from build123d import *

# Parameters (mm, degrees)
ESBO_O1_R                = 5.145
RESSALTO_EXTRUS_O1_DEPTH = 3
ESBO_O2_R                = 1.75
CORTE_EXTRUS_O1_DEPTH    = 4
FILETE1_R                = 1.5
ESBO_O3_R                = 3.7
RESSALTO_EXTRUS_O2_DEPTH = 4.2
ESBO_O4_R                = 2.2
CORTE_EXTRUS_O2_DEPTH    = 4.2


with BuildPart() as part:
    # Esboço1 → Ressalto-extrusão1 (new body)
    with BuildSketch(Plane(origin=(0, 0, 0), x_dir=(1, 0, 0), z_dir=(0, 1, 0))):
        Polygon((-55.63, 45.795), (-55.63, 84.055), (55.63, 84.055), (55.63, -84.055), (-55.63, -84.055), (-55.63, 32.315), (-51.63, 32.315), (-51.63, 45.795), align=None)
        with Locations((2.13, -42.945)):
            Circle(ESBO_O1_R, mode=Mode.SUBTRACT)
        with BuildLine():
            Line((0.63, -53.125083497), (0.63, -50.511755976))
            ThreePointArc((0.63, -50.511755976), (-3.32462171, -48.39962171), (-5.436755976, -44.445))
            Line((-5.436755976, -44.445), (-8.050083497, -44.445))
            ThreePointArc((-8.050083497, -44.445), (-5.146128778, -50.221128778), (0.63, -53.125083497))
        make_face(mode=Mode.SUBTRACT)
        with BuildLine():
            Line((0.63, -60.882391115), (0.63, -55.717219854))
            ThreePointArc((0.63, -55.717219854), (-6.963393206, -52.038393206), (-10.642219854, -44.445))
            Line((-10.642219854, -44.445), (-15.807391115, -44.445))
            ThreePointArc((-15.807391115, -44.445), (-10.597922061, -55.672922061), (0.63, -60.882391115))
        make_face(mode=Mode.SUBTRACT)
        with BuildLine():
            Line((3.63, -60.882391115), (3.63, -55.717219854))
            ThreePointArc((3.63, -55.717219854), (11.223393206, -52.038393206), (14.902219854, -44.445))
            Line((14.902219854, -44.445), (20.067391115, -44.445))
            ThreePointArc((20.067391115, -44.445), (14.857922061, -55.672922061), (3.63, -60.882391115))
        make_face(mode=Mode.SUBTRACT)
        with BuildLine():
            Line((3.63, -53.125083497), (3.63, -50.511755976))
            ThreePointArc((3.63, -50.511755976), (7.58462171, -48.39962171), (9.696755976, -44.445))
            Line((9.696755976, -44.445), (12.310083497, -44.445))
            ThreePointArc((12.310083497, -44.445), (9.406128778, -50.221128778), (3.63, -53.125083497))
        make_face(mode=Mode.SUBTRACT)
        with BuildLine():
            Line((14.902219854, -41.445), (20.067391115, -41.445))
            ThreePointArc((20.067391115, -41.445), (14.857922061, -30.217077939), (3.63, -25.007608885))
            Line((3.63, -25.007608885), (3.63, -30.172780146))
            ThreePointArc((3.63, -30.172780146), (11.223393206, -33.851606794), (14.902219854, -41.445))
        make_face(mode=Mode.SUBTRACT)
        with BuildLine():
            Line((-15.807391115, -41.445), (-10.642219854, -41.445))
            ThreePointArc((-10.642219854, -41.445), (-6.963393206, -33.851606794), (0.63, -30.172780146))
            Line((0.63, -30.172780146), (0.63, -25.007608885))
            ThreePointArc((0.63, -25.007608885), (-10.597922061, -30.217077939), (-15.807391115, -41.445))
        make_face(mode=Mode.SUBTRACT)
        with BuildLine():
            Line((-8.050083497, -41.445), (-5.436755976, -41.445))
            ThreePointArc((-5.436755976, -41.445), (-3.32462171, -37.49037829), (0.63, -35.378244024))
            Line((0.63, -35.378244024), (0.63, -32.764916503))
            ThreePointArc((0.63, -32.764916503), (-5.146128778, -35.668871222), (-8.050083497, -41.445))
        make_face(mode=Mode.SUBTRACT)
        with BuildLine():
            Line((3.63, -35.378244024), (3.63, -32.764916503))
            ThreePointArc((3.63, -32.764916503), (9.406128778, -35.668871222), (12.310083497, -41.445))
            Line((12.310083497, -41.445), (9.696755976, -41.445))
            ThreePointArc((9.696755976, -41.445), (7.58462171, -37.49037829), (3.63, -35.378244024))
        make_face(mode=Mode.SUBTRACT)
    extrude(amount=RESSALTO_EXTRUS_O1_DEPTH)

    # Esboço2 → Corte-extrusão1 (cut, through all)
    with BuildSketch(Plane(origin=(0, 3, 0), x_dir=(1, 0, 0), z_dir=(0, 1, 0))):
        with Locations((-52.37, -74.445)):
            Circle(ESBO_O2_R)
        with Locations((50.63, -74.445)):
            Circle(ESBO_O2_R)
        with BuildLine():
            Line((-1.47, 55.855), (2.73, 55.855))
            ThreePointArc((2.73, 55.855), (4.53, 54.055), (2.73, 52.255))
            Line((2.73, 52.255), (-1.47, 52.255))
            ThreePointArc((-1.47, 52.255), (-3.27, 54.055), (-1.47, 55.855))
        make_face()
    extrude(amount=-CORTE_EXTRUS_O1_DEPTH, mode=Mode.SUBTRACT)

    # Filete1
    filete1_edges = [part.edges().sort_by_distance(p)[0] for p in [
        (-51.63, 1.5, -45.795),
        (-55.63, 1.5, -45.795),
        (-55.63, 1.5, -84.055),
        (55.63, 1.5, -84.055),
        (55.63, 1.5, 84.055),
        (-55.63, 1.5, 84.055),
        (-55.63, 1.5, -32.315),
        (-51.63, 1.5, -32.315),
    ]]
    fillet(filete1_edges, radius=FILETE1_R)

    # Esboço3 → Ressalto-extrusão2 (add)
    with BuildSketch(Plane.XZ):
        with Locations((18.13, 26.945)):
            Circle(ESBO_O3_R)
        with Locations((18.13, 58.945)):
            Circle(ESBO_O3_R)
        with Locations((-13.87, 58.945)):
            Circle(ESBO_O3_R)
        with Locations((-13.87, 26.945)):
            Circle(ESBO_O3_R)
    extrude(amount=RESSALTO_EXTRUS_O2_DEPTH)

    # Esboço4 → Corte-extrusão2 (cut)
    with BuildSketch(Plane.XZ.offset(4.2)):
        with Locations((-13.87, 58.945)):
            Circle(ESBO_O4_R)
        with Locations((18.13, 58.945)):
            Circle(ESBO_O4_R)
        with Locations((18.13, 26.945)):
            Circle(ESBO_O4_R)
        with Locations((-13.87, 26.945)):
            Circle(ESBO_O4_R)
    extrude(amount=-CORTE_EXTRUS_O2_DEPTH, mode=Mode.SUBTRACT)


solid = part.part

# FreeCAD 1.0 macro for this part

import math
import FreeCAD as App
import Part
import Sketcher
Q = App.Units.Quantity


def edges_at(feature, points):
    """Names of the edges that pass closest to the given points."""
    edges = feature.Shape.Edges
    near = lambda p: min(range(len(edges)), key=lambda i: edges[i].distToShape(Part.Vertex(*p))[0])
    return sorted({f"Edge{near(p) + 1}" for p in points})


def add_polygon(sketch, points):
    """Adds a closed chain of lines whose ends are joined by coincident constraints."""
    first, n = sketch.GeometryCount, len(points)
    for a, b in zip(points, points[1:] + points[:1]):
        sketch.addGeometry(Part.LineSegment(App.Vector(*a, 0), App.Vector(*b, 0)), False)
    for i in range(n):
        sketch.addConstraint(Sketcher.Constraint("Coincident", first + i, 2, first + (i + 1) % n, 1))

doc = App.newDocument("Part")
body = doc.addObject("PartDesign::Body", "Body")

# Sketch on XZ plane
sketch1 = body.newObject("Sketcher::SketchObject", "Sketch")
sketch1.AttachmentSupport = (doc.getObject("XZ_Plane"), [""])
sketch1.MapMode = "FlatFace"
add_polygon(sketch1, [(-55.6, -84.1), (-55.6, -45.8), (-51.6, -45.8), (-51.6, -32.3), (-55.6, -32.3), (-55.6, 84.1), (55.6, 84.1), (55.6, -84.1)])  # lines 0-7
sketch1.addGeometry(Part.LineSegment(App.Vector(3.6, 60.9, 0), App.Vector(3.6, 55.7, 0)), False)  # 8
sketch1.addGeometry(Part.ArcOfCircle(Part.Circle(App.Vector(2.1, 42.9, 0), App.Vector(0, 0, 1), 12.9), math.radians(7), math.radians(83)), False)  # 9
sketch1.addGeometry(Part.LineSegment(App.Vector(14.9, 44.4, 0), App.Vector(20.1, 44.4, 0)), False)  # 10
sketch1.addGeometry(Part.ArcOfCircle(Part.Circle(App.Vector(2.1, 42.9, 0), App.Vector(0, 0, 1), 18), math.radians(5), math.radians(85)), False)  # 11
sketch1.addGeometry(Part.LineSegment(App.Vector(3.6, 53.1, 0), App.Vector(3.6, 50.5, 0)), False)  # 12
sketch1.addGeometry(Part.ArcOfCircle(Part.Circle(App.Vector(2.1, 42.9, 0), App.Vector(0, 0, 1), 7.7), math.radians(11), math.radians(79)), False)  # 13
sketch1.addGeometry(Part.LineSegment(App.Vector(9.7, 44.4, 0), App.Vector(12.3, 44.4, 0)), False)  # 14
sketch1.addGeometry(Part.ArcOfCircle(Part.Circle(App.Vector(2.1, 42.9, 0), App.Vector(0, 0, 1), 10.3), math.radians(8), math.radians(82)), False)  # 15
sketch1.addGeometry(Part.ArcOfCircle(Part.Circle(App.Vector(2.1, 42.9, 0), App.Vector(0, 0, 1), 18), math.radians(95), math.radians(175)), False)  # 16
sketch1.addGeometry(Part.LineSegment(App.Vector(-15.8, 44.4, 0), App.Vector(-10.6, 44.4, 0)), False)  # 17
sketch1.addGeometry(Part.ArcOfCircle(Part.Circle(App.Vector(2.1, 42.9, 0), App.Vector(0, 0, 1), 12.9), math.radians(97), math.radians(173)), False)  # 18
sketch1.addGeometry(Part.LineSegment(App.Vector(0.6, 55.7, 0), App.Vector(0.6, 60.9, 0)), False)  # 19
sketch1.addGeometry(Part.ArcOfCircle(Part.Circle(App.Vector(2.1, 42.9, 0), App.Vector(0, 0, 1), 10.3), math.radians(98), math.radians(172)), False)  # 20
sketch1.addGeometry(Part.LineSegment(App.Vector(-8.1, 44.4, 0), App.Vector(-5.4, 44.4, 0)), False)  # 21
sketch1.addGeometry(Part.ArcOfCircle(Part.Circle(App.Vector(2.1, 42.9, 0), App.Vector(0, 0, 1), 7.7), math.radians(101), math.radians(169)), False)  # 22
sketch1.addGeometry(Part.LineSegment(App.Vector(0.6, 50.5, 0), App.Vector(0.6, 53.1, 0)), False)  # 23
sketch1.addGeometry(Part.Circle(App.Vector(2.1, 42.9, 0), App.Vector(0, 0, 1), 5.1), False)  # 24
sketch1.addGeometry(Part.LineSegment(App.Vector(3.6, 35.4, 0), App.Vector(3.6, 32.8, 0)), False)  # 25
sketch1.addGeometry(Part.ArcOfCircle(Part.Circle(App.Vector(2.1, 42.9, 0), App.Vector(0, 0, 1), 10.3), math.radians(-82), math.radians(-8)), False)  # 26
sketch1.addGeometry(Part.LineSegment(App.Vector(12.3, 41.4, 0), App.Vector(9.7, 41.4, 0)), False)  # 27
sketch1.addGeometry(Part.ArcOfCircle(Part.Circle(App.Vector(2.1, 42.9, 0), App.Vector(0, 0, 1), 7.7), math.radians(-79), math.radians(-11)), False)  # 28
sketch1.addGeometry(Part.ArcOfCircle(Part.Circle(App.Vector(2.1, 42.9, 0), App.Vector(0, 0, 1), 12.9), math.radians(-83), math.radians(-7)), False)  # 29
sketch1.addGeometry(Part.LineSegment(App.Vector(3.6, 30.2, 0), App.Vector(3.6, 25, 0)), False)  # 30
sketch1.addGeometry(Part.ArcOfCircle(Part.Circle(App.Vector(2.1, 42.9, 0), App.Vector(0, 0, 1), 18), math.radians(-85), math.radians(-5)), False)  # 31
sketch1.addGeometry(Part.LineSegment(App.Vector(20.1, 41.4, 0), App.Vector(14.9, 41.4, 0)), False)  # 32
sketch1.addGeometry(Part.ArcOfCircle(Part.Circle(App.Vector(2.1, 42.9, 0), App.Vector(0, 0, 1), 10.3), math.radians(-172), math.radians(-98)), False)  # 33
sketch1.addGeometry(Part.LineSegment(App.Vector(0.6, 32.8, 0), App.Vector(0.6, 35.4, 0)), False)  # 34
sketch1.addGeometry(Part.ArcOfCircle(Part.Circle(App.Vector(2.1, 42.9, 0), App.Vector(0, 0, 1), 7.7), math.radians(-169), math.radians(-101)), False)  # 35
sketch1.addGeometry(Part.LineSegment(App.Vector(-5.4, 41.4, 0), App.Vector(-8.1, 41.4, 0)), False)  # 36
sketch1.addGeometry(Part.ArcOfCircle(Part.Circle(App.Vector(2.1, 42.9, 0), App.Vector(0, 0, 1), 18), math.radians(-175), math.radians(-95)), False)  # 37
sketch1.addGeometry(Part.LineSegment(App.Vector(0.6, 25, 0), App.Vector(0.6, 30.2, 0)), False)  # 38
sketch1.addGeometry(Part.ArcOfCircle(Part.Circle(App.Vector(2.1, 42.9, 0), App.Vector(0, 0, 1), 12.9), math.radians(-173), math.radians(-97)), False)  # 39
sketch1.addGeometry(Part.LineSegment(App.Vector(-10.6, 41.4, 0), App.Vector(-15.8, 41.4, 0)), False)  # 40
sketch1.addConstraint([
    Sketcher.Constraint("Coincident", 8, 2, 9, 2),
    Sketcher.Constraint("Coincident", 9, 1, 10, 1),
    Sketcher.Constraint("Coincident", 10, 2, 11, 1),
    Sketcher.Constraint("Coincident", 11, 2, 8, 1),
    Sketcher.Constraint("Coincident", 12, 2, 13, 2),
    Sketcher.Constraint("Coincident", 13, 1, 14, 1),
    Sketcher.Constraint("Coincident", 14, 2, 15, 1),
    Sketcher.Constraint("Coincident", 15, 2, 12, 1),
    Sketcher.Constraint("Coincident", 16, 2, 17, 1),
    Sketcher.Constraint("Coincident", 17, 2, 18, 2),
    Sketcher.Constraint("Coincident", 18, 1, 19, 1),
    Sketcher.Constraint("Coincident", 19, 2, 16, 1),
    Sketcher.Constraint("Coincident", 20, 2, 21, 1),
    Sketcher.Constraint("Coincident", 21, 2, 22, 2),
    Sketcher.Constraint("Coincident", 22, 1, 23, 1),
    Sketcher.Constraint("Coincident", 23, 2, 20, 1),
    Sketcher.Constraint("Coincident", 25, 2, 26, 1),
    Sketcher.Constraint("Coincident", 26, 2, 27, 1),
    Sketcher.Constraint("Coincident", 27, 2, 28, 2),
    Sketcher.Constraint("Coincident", 28, 1, 25, 1),
    Sketcher.Constraint("Coincident", 29, 1, 30, 1),
    Sketcher.Constraint("Coincident", 30, 2, 31, 1),
    Sketcher.Constraint("Coincident", 31, 2, 32, 1),
    Sketcher.Constraint("Coincident", 32, 2, 29, 2),
    Sketcher.Constraint("Coincident", 33, 2, 34, 1),
    Sketcher.Constraint("Coincident", 34, 2, 35, 2),
    Sketcher.Constraint("Coincident", 35, 1, 36, 1),
    Sketcher.Constraint("Coincident", 36, 2, 33, 1),
    Sketcher.Constraint("Coincident", 37, 2, 38, 1),
    Sketcher.Constraint("Coincident", 38, 2, 39, 2),
    Sketcher.Constraint("Coincident", 39, 1, 40, 1),
    Sketcher.Constraint("Coincident", 40, 2, 37, 1),
    Sketcher.Constraint("Vertical", 0),
    Sketcher.Constraint("Horizontal", 1),
    Sketcher.Constraint("Vertical", 2),
    Sketcher.Constraint("Horizontal", 3),
    Sketcher.Constraint("Vertical", 4),
    Sketcher.Constraint("Horizontal", 5),
    Sketcher.Constraint("Vertical", 6),
    Sketcher.Constraint("Horizontal", 7),
    Sketcher.Constraint("Vertical", 8),
    Sketcher.Constraint("Horizontal", 10),
    Sketcher.Constraint("Vertical", 12),
    Sketcher.Constraint("Horizontal", 14),
    Sketcher.Constraint("Horizontal", 17),
    Sketcher.Constraint("Vertical", 19),
    Sketcher.Constraint("Horizontal", 21),
    Sketcher.Constraint("Vertical", 23),
    Sketcher.Constraint("Vertical", 25),
    Sketcher.Constraint("Horizontal", 27),
    Sketcher.Constraint("Vertical", 30),
    Sketcher.Constraint("Horizontal", 32),
    Sketcher.Constraint("Vertical", 34),
    Sketcher.Constraint("Horizontal", 36),
    Sketcher.Constraint("Vertical", 38),
    Sketcher.Constraint("Horizontal", 40),
    Sketcher.Constraint("Coincident", 11, 3, 9, 3),
    Sketcher.Constraint("Coincident", 13, 3, 9, 3),
    Sketcher.Constraint("Coincident", 15, 3, 9, 3),
    Sketcher.Constraint("Coincident", 16, 3, 9, 3),
    Sketcher.Constraint("Coincident", 18, 3, 9, 3),
    Sketcher.Constraint("Coincident", 20, 3, 9, 3),
    Sketcher.Constraint("Coincident", 22, 3, 9, 3),
    Sketcher.Constraint("Coincident", 24, 3, 9, 3),
    Sketcher.Constraint("Coincident", 26, 3, 9, 3),
    Sketcher.Constraint("Coincident", 28, 3, 9, 3),
    Sketcher.Constraint("Coincident", 29, 3, 9, 3),
    Sketcher.Constraint("Coincident", 31, 3, 9, 3),
    Sketcher.Constraint("Coincident", 33, 3, 9, 3),
    Sketcher.Constraint("Coincident", 35, 3, 9, 3),
    Sketcher.Constraint("Coincident", 37, 3, 9, 3),
    Sketcher.Constraint("Coincident", 39, 3, 9, 3),
    Sketcher.Constraint("Equal", 11, 16),
    Sketcher.Constraint("Equal", 9, 18),
    Sketcher.Constraint("Equal", 15, 20),
    Sketcher.Constraint("Equal", 13, 22),
    Sketcher.Constraint("Equal", 20, 26),
    Sketcher.Constraint("Equal", 22, 28),
    Sketcher.Constraint("Equal", 18, 29),
    Sketcher.Constraint("Equal", 16, 31),
    Sketcher.Constraint("Equal", 26, 33),
    Sketcher.Constraint("Equal", 28, 35),
    Sketcher.Constraint("Equal", 31, 37),
    Sketcher.Constraint("Equal", 29, 39),
    Sketcher.Constraint("Symmetric", 4, 2, 6, 2, -1, 1),
    Sketcher.Constraint("Horizontal", 10, 2, 13, 1),
    Sketcher.Constraint("Horizontal", 14, 2, 16, 2),
    Sketcher.Constraint("Horizontal", 8, 2, 18, 1),
    Sketcher.Constraint("Horizontal", 17, 2, 20, 2),
    Sketcher.Constraint("Horizontal", 12, 2, 22, 1),
    Sketcher.Constraint("Horizontal", 27, 2, 31, 2),
    Sketcher.Constraint("Horizontal", 25, 2, 33, 2),
    Sketcher.Constraint("Horizontal", 32, 2, 35, 1),
    Sketcher.Constraint("Horizontal", 30, 2, 37, 2),
    Sketcher.Constraint("Horizontal", 36, 2, 39, 1),
    Sketcher.Constraint("Vertical", 0, 2, 3, 2),
    Sketcher.Constraint("Vertical", 11, 2, 12, 2),
    Sketcher.Constraint("Vertical", 15, 2, 25, 2),
    Sketcher.Constraint("Vertical", 14, 2, 26, 2),
    Sketcher.Constraint("Vertical", 28, 1, 29, 1),
    Sketcher.Constraint("Equal", 40, 8),
    Sketcher.Constraint("Radius", 11, Q("18 mm")),
    Sketcher.Constraint("Diameter", 24, Q("10.29 mm")),
    Sketcher.Constraint("DistanceX", 1, 1, 1, 2, Q("4 mm")),
    Sketcher.Constraint("Radius", 9, Q("12.86 mm")),
    Sketcher.Constraint("Radius", 15, Q("10.29 mm")),
    Sketcher.Constraint("Radius", 13, Q("7.714 mm")),
    Sketcher.Constraint("DistanceY", 6, 2, 16, 3, Q("127 mm")),
    Sketcher.Constraint("DistanceX", 18, 1, 8, 2, Q("3 mm")),
    Sketcher.Constraint("DistanceX", 5, 1, 5, 2, Q("111.26 mm")),
    Sketcher.Constraint("DistanceY", 0, 1, 0, 2, Q("38.26 mm")),
    Sketcher.Constraint("DistanceY", 2, 1, 2, 2, Q("13.48 mm")),
    Sketcher.Constraint("DistanceY", 4, 1, 4, 2, Q("116.37 mm")),
    Sketcher.Constraint("DistanceX", 33, 3, 5, 2, Q("53.5 mm")),
])
pad1 = body.newObject("PartDesign::Pad", "Pad")
pad1.Profile = sketch1
pad1.Length = 3
pad1.Reversed = True

# Sketch on XZ plane
sketch2 = body.newObject("Sketcher::SketchObject", "Sketch001")
sketch2.AttachmentSupport = (doc.getObject("XZ_Plane"), [""])
sketch2.MapMode = "FlatFace"
sketch2.AttachmentOffset = App.Placement(App.Vector(0, 0, -3), App.Rotation())
sketch2.addGeometry([
    Part.Circle(App.Vector(-52.4, 74.4, 0), App.Vector(0, 0, 1), 1.8),  # 0
    Part.Circle(App.Vector(50.6, 74.4, 0), App.Vector(0, 0, 1), 1.8),  # 1
    Part.LineSegment(App.Vector(2.7, -55.9, 0), App.Vector(-1.5, -55.9, 0)),  # 2
    Part.ArcOfCircle(Part.Circle(App.Vector(-1.5, -54.1, 0), App.Vector(0, 0, 1), 1.8), math.radians(90), math.radians(270)),  # 3
    Part.LineSegment(App.Vector(-1.5, -52.3, 0), App.Vector(2.7, -52.3, 0)),  # 4
    Part.ArcOfCircle(Part.Circle(App.Vector(2.7, -54.1, 0), App.Vector(0, 0, 1), 1.8), math.radians(-90), math.radians(90)),  # 5
], False)
sketch2.addConstraint([
    Sketcher.Constraint("Tangent", 2, 2, 3, 2),
    Sketcher.Constraint("Tangent", 3, 1, 4, 1),
    Sketcher.Constraint("Tangent", 4, 2, 5, 2),
    Sketcher.Constraint("Tangent", 5, 1, 2, 1),
    Sketcher.Constraint("Horizontal", 2),
    Sketcher.Constraint("Horizontal", 4),
    Sketcher.Constraint("Equal", 0, 1),
    Sketcher.Constraint("Horizontal", 0, 3, 1, 3),
    Sketcher.Constraint("Diameter", 0, Q("3.5 mm")),
    Sketcher.Constraint("Radius", 3, Q("1.8 mm")),
    Sketcher.Constraint("DistanceX", 2, 2, 2, 1, Q("4.2 mm")),
    Sketcher.Constraint("DistanceX", 0, 3, 1, 3, Q("103 mm")),
    Sketcher.Constraint("DistanceX", 0, 3, 3, 3, Q("50.9 mm")),
    Sketcher.Constraint("DistanceY", 3, 3, 0, 3, Q("128.5 mm")),
    Sketcher.Constraint("DistanceX", 0, 3, -1, 1, Q("52.37 mm")),
    Sketcher.Constraint("DistanceY", -1, 1, 0, 3, Q("74.445 mm")),
])
pocket1 = body.newObject("PartDesign::Pocket", "Pocket")
pocket1.Profile = sketch2
pocket1.Type = "ThroughAll"
pocket1.Reversed = True
doc.recompute()

fillet = body.newObject("PartDesign::Fillet", "Fillet")
fillet.Base = (pocket1, edges_at(pocket1, [
    (-51.63, 1.5, -45.795),
    (-55.63, 1.5, -45.795),
    (-55.63, 1.5, -84.055),
    (55.63, 1.5, -84.055),
    (55.63, 1.5, 84.055),
    (-55.63, 1.5, 84.055),
    (-55.63, 1.5, -32.315),
    (-51.63, 1.5, -32.315),
]))
fillet.Radius = 1.5

# Sketch on XZ plane
sketch3 = body.newObject("Sketcher::SketchObject", "Sketch002")
sketch3.AttachmentSupport = (doc.getObject("XZ_Plane"), [""])
sketch3.MapMode = "FlatFace"
sketch3.addGeometry([
    Part.Circle(App.Vector(18.1, 26.9, 0), App.Vector(0, 0, 1), 3.7),
    Part.Circle(App.Vector(18.1, 58.9, 0), App.Vector(0, 0, 1), 3.7),
    Part.Circle(App.Vector(-13.9, 58.9, 0), App.Vector(0, 0, 1), 3.7),
    Part.Circle(App.Vector(-13.9, 26.9, 0), App.Vector(0, 0, 1), 3.7),
], False)
sketch3.addConstraint([
    Sketcher.Constraint("Equal", 0, 1),
    Sketcher.Constraint("Equal", 1, 2),
    Sketcher.Constraint("Equal", 2, 3),
    Sketcher.Constraint("Horizontal", 1, 3, 2, 3),
    Sketcher.Constraint("Horizontal", 0, 3, 3, 3),
    Sketcher.Constraint("Vertical", 0, 3, 1, 3),
    Sketcher.Constraint("Vertical", 2, 3, 3, 3),
    Sketcher.Constraint("Diameter", 0, Q("7.4 mm")),
    Sketcher.Constraint("DistanceY", 0, 3, 1, 3, Q("32 mm")),
    Sketcher.Constraint("DistanceX", 2, 3, 1, 3, Q("32 mm")),
    Sketcher.Constraint("DistanceX", -1, 1, 0, 3, Q("18.13 mm")),
    Sketcher.Constraint("DistanceY", -1, 1, 0, 3, Q("26.945 mm")),
])
pad2 = body.newObject("PartDesign::Pad", "Pad001")
pad2.Profile = sketch3
pad2.Length = 4.2

# Sketch on XZ plane
sketch4 = body.newObject("Sketcher::SketchObject", "Sketch003")
sketch4.AttachmentSupport = (doc.getObject("XZ_Plane"), [""])
sketch4.MapMode = "FlatFace"
sketch4.AttachmentOffset = App.Placement(App.Vector(0, 0, 4.2), App.Rotation())
sketch4.addGeometry([
    Part.Circle(App.Vector(-13.9, 58.9, 0), App.Vector(0, 0, 1), 2.2),
    Part.Circle(App.Vector(18.1, 58.9, 0), App.Vector(0, 0, 1), 2.2),
    Part.Circle(App.Vector(18.1, 26.9, 0), App.Vector(0, 0, 1), 2.2),
    Part.Circle(App.Vector(-13.9, 26.9, 0), App.Vector(0, 0, 1), 2.2),
], False)
sketch4.addConstraint([
    Sketcher.Constraint("Equal", 0, 1),
    Sketcher.Constraint("Equal", 1, 2),
    Sketcher.Constraint("Equal", 2, 3),
    Sketcher.Constraint("Horizontal", 0, 3, 1, 3),
    Sketcher.Constraint("Horizontal", 2, 3, 3, 3),
    Sketcher.Constraint("Vertical", 1, 3, 2, 3),
    Sketcher.Constraint("Vertical", 0, 3, 3, 3),
    Sketcher.Constraint("Diameter", 0, Q("4.4 mm")),
    Sketcher.Constraint("DistanceX", 0, 3, 1, 3, Q("32 mm")),
    Sketcher.Constraint("DistanceY", 2, 3, 1, 3, Q("32 mm")),
    Sketcher.Constraint("DistanceX", 0, 3, -1, 1, Q("13.87 mm")),
    Sketcher.Constraint("DistanceY", -1, 1, 0, 3, Q("58.945 mm")),
])
pocket2 = body.newObject("PartDesign::Pocket", "Pocket001")
pocket2.Profile = sketch4
pocket2.Length = 4.2

doc.recompute()
